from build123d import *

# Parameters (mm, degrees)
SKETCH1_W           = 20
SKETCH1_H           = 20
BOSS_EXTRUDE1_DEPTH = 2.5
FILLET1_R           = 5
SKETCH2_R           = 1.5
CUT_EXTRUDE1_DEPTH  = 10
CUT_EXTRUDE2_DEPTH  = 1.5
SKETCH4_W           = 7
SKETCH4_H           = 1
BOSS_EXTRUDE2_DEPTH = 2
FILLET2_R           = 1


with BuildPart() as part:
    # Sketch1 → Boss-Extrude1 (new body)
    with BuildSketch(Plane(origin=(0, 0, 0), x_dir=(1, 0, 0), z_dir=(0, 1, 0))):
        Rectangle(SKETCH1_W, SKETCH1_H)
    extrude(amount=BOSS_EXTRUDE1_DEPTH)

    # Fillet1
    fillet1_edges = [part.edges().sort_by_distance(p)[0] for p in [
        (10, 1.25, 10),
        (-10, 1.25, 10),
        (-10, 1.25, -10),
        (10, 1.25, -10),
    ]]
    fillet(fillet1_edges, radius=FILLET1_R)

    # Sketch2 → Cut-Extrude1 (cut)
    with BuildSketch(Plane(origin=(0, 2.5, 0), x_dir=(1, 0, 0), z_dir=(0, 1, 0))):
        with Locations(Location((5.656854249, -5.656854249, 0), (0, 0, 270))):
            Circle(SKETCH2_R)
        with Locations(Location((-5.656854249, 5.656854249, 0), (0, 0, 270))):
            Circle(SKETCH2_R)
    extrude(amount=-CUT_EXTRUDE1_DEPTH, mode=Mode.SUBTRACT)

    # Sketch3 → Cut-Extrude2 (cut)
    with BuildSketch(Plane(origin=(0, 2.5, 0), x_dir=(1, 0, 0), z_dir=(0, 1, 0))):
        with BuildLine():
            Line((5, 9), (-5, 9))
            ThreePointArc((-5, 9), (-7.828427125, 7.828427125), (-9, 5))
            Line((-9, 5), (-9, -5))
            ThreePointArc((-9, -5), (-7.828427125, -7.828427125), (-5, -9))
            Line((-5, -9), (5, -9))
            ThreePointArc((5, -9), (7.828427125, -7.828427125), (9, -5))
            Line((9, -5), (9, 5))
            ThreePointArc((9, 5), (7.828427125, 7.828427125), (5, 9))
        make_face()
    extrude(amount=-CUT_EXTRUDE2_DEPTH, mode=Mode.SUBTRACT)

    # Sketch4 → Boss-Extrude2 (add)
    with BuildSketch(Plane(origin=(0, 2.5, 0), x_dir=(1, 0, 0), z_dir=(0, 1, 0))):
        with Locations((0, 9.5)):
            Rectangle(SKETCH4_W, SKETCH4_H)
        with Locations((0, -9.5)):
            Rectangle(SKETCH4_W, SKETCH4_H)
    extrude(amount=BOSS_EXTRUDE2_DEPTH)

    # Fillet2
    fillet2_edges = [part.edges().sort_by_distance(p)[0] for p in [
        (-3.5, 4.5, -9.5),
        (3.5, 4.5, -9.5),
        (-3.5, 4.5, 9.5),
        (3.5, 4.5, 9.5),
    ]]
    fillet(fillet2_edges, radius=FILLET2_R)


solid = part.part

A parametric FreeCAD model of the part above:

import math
import FreeCAD as App
import Part
import Sketcher
from FreeCAD import Vector


def edges_at(feature, points):
    """Names of the edges that pass closest to the given points."""
    edges = feature.Shape.Edges
    near = lambda p: min(range(len(edges)), key=lambda i: edges[i].distToShape(Part.Vertex(*p))[0])
    return sorted({f"Edge{near(p) + 1}" for p in points})

doc = App.newDocument("Part")
body = doc.addObject("PartDesign::Body", "Body")

# Sketch on XZ plane
sketch1 = body.newObject("Sketcher::SketchObject", "Sketch")
sketch1.AttachmentSupport = (doc.getObject("XZ_Plane"), [""])
sketch1.MapMode = "FlatFace"
sketch1.addGeometry([
    Part.LineSegment(Vector(-10, -10, 0), Vector(-10, 10, 0)),
    Part.LineSegment(Vector(-10, 10, 0), Vector(10, 10, 0)),
    Part.LineSegment(Vector(10, 10, 0), Vector(10, -10, 0)),
    Part.LineSegment(Vector(10, -10, 0), Vector(-10, -10, 0)),
], False)
sketch1.addConstraint([
    Sketcher.Constraint("Coincident", 0, 2, 1, 1),
    Sketcher.Constraint("Coincident", 1, 2, 2, 1),
    Sketcher.Constraint("Coincident", 2, 2, 3, 1),
    Sketcher.Constraint("Coincident", 3, 2, 0, 1),
    Sketcher.Constraint("Vertical", 0),
    Sketcher.Constraint("Horizontal", 1),
    Sketcher.Constraint("Vertical", 2),
    Sketcher.Constraint("Horizontal", 3),
    Sketcher.Constraint("Symmetric", 0, 2, 2, 2, -1, 1),
    Sketcher.Constraint("Equal", 3, 0),
    Sketcher.Constraint("DistanceX", 1, 1, 1, 2, 20.0),
])
pad1 = body.newObject("PartDesign::Pad", "Pad")
pad1.Profile = sketch1
pad1.Length = 2.5
pad1.Reversed = True
doc.recompute()

fillet = body.newObject("PartDesign::Fillet", "Fillet")
fillet.Base = (pad1, edges_at(pad1, [
    (10, 1.25, 10),
    (-10, 1.25, 10),
    (-10, 1.25, -10),
    (10, 1.25, -10),
]))
fillet.Radius = 5

# Sketch on XZ plane
sketch2 = body.newObject("Sketcher::SketchObject", "Sketch001")
sketch2.AttachmentSupport = (doc.getObject("XZ_Plane"), [""])
sketch2.MapMode = "FlatFace"
sketch2.AttachmentOffset = App.Placement(Vector(0, 0, -2.5), App.Rotation())
sketch2.addGeometry([
    Part.Circle(Vector(5.7, 5.7, 0), Vector(0, 0, 1), 1.5),
    Part.Circle(Vector(-5.7, -5.7, 0), Vector(0, 0, 1), 1.5),
], False)
sketch2.addConstraint([
    Sketcher.Constraint("Equal", 0, 1),
    Sketcher.Constraint("Symmetric", 0, 3, 1, 3, -1, 1),
    Sketcher.Constraint("Diameter", 0, 3.0),
    Sketcher.Constraint("DistanceX", 1, 3, 0, 3, 11.313708),
    Sketcher.Constraint("DistanceY", 1, 3, 0, 3, 11.313708),
])
pocket1 = body.newObject("PartDesign::Pocket", "Pocket")
pocket1.Profile = sketch2
pocket1.Length = 10
pocket1.Reversed = True

# Sketch on XZ plane
sketch3 = body.newObject("Sketcher::SketchObject", "Sketch002")
sketch3.AttachmentSupport = (doc.getObject("XZ_Plane"), [""])
sketch3.MapMode = "FlatFace"
sketch3.AttachmentOffset = App.Placement(Vector(0, 0, -2.5), App.Rotation())
sketch3.addGeometry([
    Part.LineSegment(Vector(5, -9, 0), Vector(-5, -9, 0)),  # 0
    Part.ArcOfCircle(Part.Circle(Vector(-5, -5, 0), Vector(0, 0, 1), 4), math.radians(180), math.radians(270)),  # 1
    Part.LineSegment(Vector(-9, -5, 0), Vector(-9, 5, 0)),  # 2
    Part.ArcOfCircle(Part.Circle(Vector(-5, 5, 0), Vector(0, 0, 1), 4), math.radians(90), math.radians(180)),  # 3
    Part.LineSegment(Vector(-5, 9, 0), Vector(5, 9, 0)),  # 4
    Part.ArcOfCircle(Part.Circle(Vector(5, 5, 0), Vector(0, 0, 1), 4), math.radians(0), math.radians(90)),  # 5
    Part.LineSegment(Vector(9, 5, 0), Vector(9, -5, 0)),  # 6
    Part.ArcOfCircle(Part.Circle(Vector(5, -5, 0), Vector(0, 0, 1), 4), math.radians(-90), math.radians(0)),  # 7
], False)
sketch3.addConstraint([
    Sketcher.Constraint("Tangent", 0, 2, 1, 2),
    Sketcher.Constraint("Tangent", 1, 1, 2, 1),
    Sketcher.Constraint("Tangent", 2, 2, 3, 2),
    Sketcher.Constraint("Tangent", 3, 1, 4, 1),
    Sketcher.Constraint("Tangent", 4, 2, 5, 2),
    Sketcher.Constraint("Tangent", 5, 1, 6, 1),
    Sketcher.Constraint("Tangent", 6, 2, 7, 2),
    Sketcher.Constraint("Tangent", 7, 1, 0, 1),
    Sketcher.Constraint("Horizontal", 0),
    Sketcher.Constraint("Vertical", 2),
    Sketcher.Constraint("Horizontal", 4),
    Sketcher.Constraint("Vertical", 6),
    Sketcher.Constraint("Equal", 1, 3),
    Sketcher.Constraint("Equal", 3, 5),
    Sketcher.Constraint("Equal", 5, 7),
    Sketcher.Constraint("Symmetric", 1, 3, 5, 3, -1, 1),
    Sketcher.Constraint("Equal", 4, 2),
    Sketcher.Constraint("Radius", 1, 4.0),
    Sketcher.Constraint("DistanceX", 0, 2, 0, 1, 10.0),
])
pocket2 = body.newObject("PartDesign::Pocket", "Pocket001")
pocket2.Profile = sketch3
pocket2.Length = 1.5
pocket2.Reversed = True

# Sketch on XZ plane
sketch4 = body.newObject("Sketcher::SketchObject", "Sketch003")
sketch4.AttachmentSupport = (doc.getObject("XZ_Plane"), [""])
sketch4.MapMode = "FlatFace"
sketch4.AttachmentOffset = App.Placement(Vector(0, 0, -2.5), App.Rotation())
sketch4.addGeometry([
    Part.LineSegment(Vector(-3.5, -10, 0), Vector(-3.5, -9, 0)),  # 0
    Part.LineSegment(Vector(-3.5, -9, 0), Vector(3.5, -9, 0)),  # 1
    Part.LineSegment(Vector(3.5, -9, 0), Vector(3.5, -10, 0)),  # 2
    Part.LineSegment(Vector(3.5, -10, 0), Vector(-3.5, -10, 0)),  # 3
    Part.LineSegment(Vector(-3.5, 9, 0), Vector(-3.5, 10, 0)),  # 4
    Part.LineSegment(Vector(-3.5, 10, 0), Vector(3.5, 10, 0)),  # 5
    Part.LineSegment(Vector(3.5, 10, 0), Vector(3.5, 9, 0)),  # 6
    Part.LineSegment(Vector(3.5, 9, 0), Vector(-3.5, 9, 0)),  # 7
], False)
sketch4.addConstraint([
    Sketcher.Constraint("Coincident", 0, 2, 1, 1),
    Sketcher.Constraint("Coincident", 1, 2, 2, 1),
    Sketcher.Constraint("Coincident", 2, 2, 3, 1),
    Sketcher.Constraint("Coincident", 3, 2, 0, 1),
    Sketcher.Constraint("Coincident", 4, 2, 5, 1),
    Sketcher.Constraint("Coincident", 5, 2, 6, 1),
    Sketcher.Constraint("Coincident", 6, 2, 7, 1),
    Sketcher.Constraint("Coincident", 7, 2, 4, 1),
    Sketcher.Constraint("Vertical", 0),
    Sketcher.Constraint("Horizontal", 1),
    Sketcher.Constraint("Vertical", 2),
    Sketcher.Constraint("Horizontal", 3),
    Sketcher.Constraint("Vertical", 4),
    Sketcher.Constraint("Horizontal", 5),
    Sketcher.Constraint("Vertical", 6),
    Sketcher.Constraint("Horizontal", 7),
    Sketcher.Constraint("Symmetric", 2, 2, 4, 2, -1, 1),
    Sketcher.Constraint("Symmetric", 0, 2, 6, 2, -1, 1),
    Sketcher.Constraint("Vertical", 3, 2, 4, 2),
    Sketcher.Constraint("DistanceX", 1, 1, 1, 2, 7.0),
    Sketcher.Constraint("DistanceY", 0, 1, 0, 2, 1.0),
    Sketcher.Constraint("DistanceY", 0, 2, -1, 1, 9.0),
])
pad2 = body.newObject("PartDesign::Pad", "Pad001")
pad2.Profile = sketch4
pad2.Length = 2
pad2.Reversed = True
doc.recompute()

fillet2 = body.newObject("PartDesign::Fillet", "Fillet001")
fillet2.Base = (pad2, edges_at(pad2, [
    (-3.5, 4.5, -9.5),
    (3.5, 4.5, -9.5),
    (-3.5, 4.5, 9.5),
    (3.5, 4.5, 9.5),
]))
fillet2.Radius = 1

doc.recompute()
